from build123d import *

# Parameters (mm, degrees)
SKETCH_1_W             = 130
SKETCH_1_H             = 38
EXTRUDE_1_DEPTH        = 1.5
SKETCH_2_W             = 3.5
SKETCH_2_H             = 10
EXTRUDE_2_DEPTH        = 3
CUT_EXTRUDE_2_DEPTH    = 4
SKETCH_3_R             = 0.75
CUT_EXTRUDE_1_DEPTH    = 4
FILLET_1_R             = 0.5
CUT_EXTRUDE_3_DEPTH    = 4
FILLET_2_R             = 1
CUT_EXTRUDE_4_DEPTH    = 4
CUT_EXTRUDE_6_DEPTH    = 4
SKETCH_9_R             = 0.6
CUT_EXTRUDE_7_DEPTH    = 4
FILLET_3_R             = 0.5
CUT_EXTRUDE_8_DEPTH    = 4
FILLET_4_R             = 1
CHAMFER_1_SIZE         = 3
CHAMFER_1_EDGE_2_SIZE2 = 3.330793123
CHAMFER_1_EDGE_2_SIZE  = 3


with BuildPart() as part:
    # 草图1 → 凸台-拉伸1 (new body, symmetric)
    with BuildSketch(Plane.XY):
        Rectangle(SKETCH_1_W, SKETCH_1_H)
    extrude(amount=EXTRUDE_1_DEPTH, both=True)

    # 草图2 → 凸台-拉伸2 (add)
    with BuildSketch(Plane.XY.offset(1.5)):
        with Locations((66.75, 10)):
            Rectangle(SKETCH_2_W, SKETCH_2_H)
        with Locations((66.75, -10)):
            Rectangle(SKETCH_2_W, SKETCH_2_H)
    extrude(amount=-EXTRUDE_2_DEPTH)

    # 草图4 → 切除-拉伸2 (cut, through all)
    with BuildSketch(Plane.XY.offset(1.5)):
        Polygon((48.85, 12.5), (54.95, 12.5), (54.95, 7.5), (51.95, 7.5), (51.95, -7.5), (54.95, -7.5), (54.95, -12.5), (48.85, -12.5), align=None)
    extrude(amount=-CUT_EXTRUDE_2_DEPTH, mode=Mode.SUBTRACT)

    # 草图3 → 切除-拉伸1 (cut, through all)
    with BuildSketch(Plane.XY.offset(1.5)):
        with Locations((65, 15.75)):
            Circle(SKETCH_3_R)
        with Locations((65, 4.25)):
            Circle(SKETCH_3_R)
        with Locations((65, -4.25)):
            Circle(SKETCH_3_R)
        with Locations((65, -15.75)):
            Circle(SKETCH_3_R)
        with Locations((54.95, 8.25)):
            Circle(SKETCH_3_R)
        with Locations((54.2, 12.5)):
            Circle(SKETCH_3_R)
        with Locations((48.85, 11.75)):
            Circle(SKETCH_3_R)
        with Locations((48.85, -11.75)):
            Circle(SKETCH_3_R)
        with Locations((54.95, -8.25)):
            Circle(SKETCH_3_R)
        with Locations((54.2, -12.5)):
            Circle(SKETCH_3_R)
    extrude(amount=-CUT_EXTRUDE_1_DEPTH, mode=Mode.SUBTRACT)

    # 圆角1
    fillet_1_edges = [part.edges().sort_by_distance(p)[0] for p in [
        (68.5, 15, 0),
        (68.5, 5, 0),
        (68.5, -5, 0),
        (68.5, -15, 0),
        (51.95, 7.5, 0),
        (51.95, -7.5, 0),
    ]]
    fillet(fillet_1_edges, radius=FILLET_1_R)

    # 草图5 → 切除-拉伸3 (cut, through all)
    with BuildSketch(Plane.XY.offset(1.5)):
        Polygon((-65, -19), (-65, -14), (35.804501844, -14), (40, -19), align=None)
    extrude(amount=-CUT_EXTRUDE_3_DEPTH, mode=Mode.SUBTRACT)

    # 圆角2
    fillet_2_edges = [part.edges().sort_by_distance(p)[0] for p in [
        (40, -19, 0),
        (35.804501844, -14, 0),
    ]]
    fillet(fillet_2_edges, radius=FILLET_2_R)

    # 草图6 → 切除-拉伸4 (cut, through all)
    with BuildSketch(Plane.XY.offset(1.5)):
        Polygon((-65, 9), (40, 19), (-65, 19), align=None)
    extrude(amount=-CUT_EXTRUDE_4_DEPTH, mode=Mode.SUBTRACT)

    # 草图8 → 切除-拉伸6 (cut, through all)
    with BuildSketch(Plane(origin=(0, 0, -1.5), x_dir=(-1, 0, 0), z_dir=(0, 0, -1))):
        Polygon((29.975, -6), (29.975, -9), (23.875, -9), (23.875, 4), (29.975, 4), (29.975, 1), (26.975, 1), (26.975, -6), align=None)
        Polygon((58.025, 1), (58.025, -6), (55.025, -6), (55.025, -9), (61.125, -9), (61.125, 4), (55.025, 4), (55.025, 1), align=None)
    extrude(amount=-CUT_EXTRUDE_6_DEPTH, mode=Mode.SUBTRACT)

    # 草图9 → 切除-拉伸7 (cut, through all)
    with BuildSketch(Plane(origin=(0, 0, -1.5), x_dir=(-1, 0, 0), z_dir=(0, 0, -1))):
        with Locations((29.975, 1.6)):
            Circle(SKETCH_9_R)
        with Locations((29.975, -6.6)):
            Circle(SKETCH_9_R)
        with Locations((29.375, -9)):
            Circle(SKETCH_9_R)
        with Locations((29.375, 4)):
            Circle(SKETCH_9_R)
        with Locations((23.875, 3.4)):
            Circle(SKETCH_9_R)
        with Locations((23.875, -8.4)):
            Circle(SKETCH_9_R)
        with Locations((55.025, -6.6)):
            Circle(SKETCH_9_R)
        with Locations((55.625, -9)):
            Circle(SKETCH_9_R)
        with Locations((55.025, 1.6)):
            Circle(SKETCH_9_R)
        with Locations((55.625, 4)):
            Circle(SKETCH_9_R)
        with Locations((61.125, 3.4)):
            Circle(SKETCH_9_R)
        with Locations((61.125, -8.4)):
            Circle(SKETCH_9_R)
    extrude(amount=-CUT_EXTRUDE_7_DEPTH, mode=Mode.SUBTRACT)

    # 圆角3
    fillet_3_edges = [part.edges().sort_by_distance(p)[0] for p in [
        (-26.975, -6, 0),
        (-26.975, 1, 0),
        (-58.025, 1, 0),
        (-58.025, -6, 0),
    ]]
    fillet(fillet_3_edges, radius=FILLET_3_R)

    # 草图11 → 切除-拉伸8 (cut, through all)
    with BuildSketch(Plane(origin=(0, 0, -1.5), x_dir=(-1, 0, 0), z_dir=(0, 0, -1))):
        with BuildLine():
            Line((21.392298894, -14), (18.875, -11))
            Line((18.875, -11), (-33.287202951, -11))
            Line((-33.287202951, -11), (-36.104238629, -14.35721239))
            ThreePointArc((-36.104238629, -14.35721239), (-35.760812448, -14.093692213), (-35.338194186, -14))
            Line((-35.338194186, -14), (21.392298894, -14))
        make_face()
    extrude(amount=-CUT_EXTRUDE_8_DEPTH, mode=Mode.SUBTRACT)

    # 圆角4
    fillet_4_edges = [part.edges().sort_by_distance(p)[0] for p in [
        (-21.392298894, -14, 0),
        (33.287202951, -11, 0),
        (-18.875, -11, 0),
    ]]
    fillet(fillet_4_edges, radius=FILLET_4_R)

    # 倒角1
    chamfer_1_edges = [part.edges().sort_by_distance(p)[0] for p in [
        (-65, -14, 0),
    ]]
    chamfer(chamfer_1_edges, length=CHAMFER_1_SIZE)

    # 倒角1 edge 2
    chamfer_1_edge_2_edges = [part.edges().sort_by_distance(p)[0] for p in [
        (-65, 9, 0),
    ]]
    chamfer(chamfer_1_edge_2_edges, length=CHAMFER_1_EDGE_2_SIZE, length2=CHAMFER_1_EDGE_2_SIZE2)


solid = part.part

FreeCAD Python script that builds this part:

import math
import FreeCAD as App
import Part
import Sketcher

V = App.Vector
Q = App.Units.Quantity


def edges_at(feature, points):
    """Names of the edges that pass closest to the given points."""
    edges = feature.Shape.Edges
    near = lambda p: min(range(len(edges)), key=lambda i: edges[i].distToShape(Part.Vertex(*p))[0])
    return sorted({f"Edge{near(p) + 1}" for p in points})


def add_polygon(sketch, points):
    """Adds a closed chain of lines whose ends are joined by coincident constraints."""
    first, n = sketch.GeometryCount, len(points)
    for a, b in zip(points, points[1:] + points[:1]):
        sketch.addGeometry(Part.LineSegment(App.Vector(*a, 0), App.Vector(*b, 0)), False)
    for i in range(n):
        sketch.addConstraint(Sketcher.Constraint("Coincident", first + i, 2, first + (i + 1) % n, 1))

doc = App.newDocument("Part")
params = doc.addObject("Spreadsheet::Sheet", "Params")
for row, (alias, value) in enumerate([
    ("sketch1_width", "130 mm"),
    ("sketch1_height", "38 mm"),
    ("pad1_length", "3 mm"),
    ("sketch2_height", "10 mm"),
    ("sketch2_width", "3.5 mm"),
    ("pad2_length", "3 mm"),
    ("sketch3_width", "3 mm"),
    ("sketch3_height", "25 mm"),
    ("sketch3_height2", "5 mm"),
    ("sketch3_width2", "6.1 mm"),
    ("sketch4_diameter", "1.5 mm"),
    ("fillet_radius", "0.5 mm"),
    ("sketch5_width", "105 mm"),
    ("sketch5_height", "5 mm"),
    ("fillet2_radius", "1 mm"),
    ("sketch6_width", "105 mm"),
    ("sketch6_height", "10 mm"),
    ("sketch7_width", "3 mm"),
    ("sketch7_height", "7 mm"),
    ("sketch7_width2", "6.1 mm"),
    ("sketch8_diameter", "1.2 mm"),
    ("fillet3_radius", "0.5 mm"),
    ("sketch9_radius", "1 mm"),
    ("fillet4_radius", "1 mm"),
    ("chamfer_size", "3 mm"),
    ("chamfer2_size", "3 mm"),
    ("chamfer2_size2", "3.330793 mm"),
], start=1):
    params.set(f"A{row}", alias)
    params.set(f"B{row}", "=" + value)
    params.setAlias(f"B{row}", alias)

body = doc.addObject("PartDesign::Body", "Body")

# Sketch on XY plane
sketch1 = body.newObject("Sketcher::SketchObject", "Sketch")
sketch1.AttachmentSupport = (doc.getObject("XY_Plane"), [""])
sketch1.MapMode = "FlatFace"
add_polygon(sketch1, [(-65, 19), (-65, -19), (65, -19), (65, 19)])  # lines 0-3
sketch1.addConstraint([
    Sketcher.Constraint("Vertical", 0),
    Sketcher.Constraint("Horizontal", 1),
    Sketcher.Constraint("Vertical", 2),
    Sketcher.Constraint("Horizontal", 3),
    Sketcher.Constraint("Symmetric", 0, 2, 2, 2, -1, 1),
    Sketcher.Constraint("DistanceX", 1, 1, 1, 2, 130.0),
    Sketcher.Constraint("DistanceY", 0, 2, 0, 1, 38.0),
])
sketch1.setExpression("Constraints[9]", "Params.sketch1_width")
sketch1.setExpression("Constraints[10]", "Params.sketch1_height")
pad1 = body.newObject("PartDesign::Pad", "Pad")
pad1.Profile = sketch1
pad1.setExpression("Length", "Params.pad1_length")
pad1.Midplane = True

# Sketch on XY plane
sketch2 = body.newObject("Sketcher::SketchObject", "Sketch001")
sketch2.AttachmentSupport = (doc.getObject("XY_Plane"), [""])
sketch2.MapMode = "FlatFace"
sketch2.AttachmentOffset = App.Placement(V(0, 0, 1.5), App.Rotation())
add_polygon(sketch2, [(65, 15), (65, 5), (68.5, 5), (68.5, 15)])  # lines 0-3
add_polygon(sketch2, [(65, -5), (65, -15), (68.5, -15), (68.5, -5)])  # lines 4-7
sketch2.addConstraint([
    Sketcher.Constraint("Vertical", 0),
    Sketcher.Constraint("Horizontal", 1),
    Sketcher.Constraint("Vertical", 2),
    Sketcher.Constraint("Horizontal", 3),
    Sketcher.Constraint("Vertical", 4),
    Sketcher.Constraint("Horizontal", 5),
    Sketcher.Constraint("Vertical", 6),
    Sketcher.Constraint("Horizontal", 7),
    Sketcher.Constraint("Symmetric", 3, 2, 4, 2, -1),
    Sketcher.Constraint("Symmetric", 1, 2, 6, 2, -1),
    Sketcher.Constraint("DistanceY", 0, 2, 0, 1, 10.0),
    Sketcher.Constraint("DistanceX", 1, 1, 1, 2, 3.5),
    Sketcher.Constraint("DistanceX", -1, 1, 0, 2, 65.0),
    Sketcher.Constraint("DistanceY", -1, 1, 0, 2, 5.0),
])
sketch2.setExpression("Constraints[18]", "Params.sketch2_height")
sketch2.setExpression("Constraints[19]", "Params.sketch2_width")
pad2 = body.newObject("PartDesign::Pad", "Pad001")
pad2.Profile = sketch2
pad2.setExpression("Length", "Params.pad2_length")
pad2.Reversed = True

# Sketch on XY plane
sketch3 = body.newObject("Sketcher::SketchObject", "Sketch002")
sketch3.AttachmentSupport = (doc.getObject("XY_Plane"), [""])
sketch3.MapMode = "FlatFace"
sketch3.AttachmentOffset = App.Placement(V(0, 0, 1.5), App.Rotation())
add_polygon(sketch3, [(55, 12.5), (48.9, 12.5), (48.9, -12.5), (55, -12.5), (55, -7.5), (52, -7.5), (52, 7.5), (55, 7.5)])  # lines 0-7
sketch3.addConstraint([
    Sketcher.Constraint("Horizontal", 0),
    Sketcher.Constraint("Vertical", 1),
    Sketcher.Constraint("Horizontal", 2),
    Sketcher.Constraint("Vertical", 3),
    Sketcher.Constraint("Horizontal", 4),
    Sketcher.Constraint("Vertical", 5),
    Sketcher.Constraint("Horizontal", 6),
    Sketcher.Constraint("Vertical", 7),
    Sketcher.Constraint("Symmetric", 3, 2, 6, 2, -1),
    Sketcher.Constraint("Equal", 3, 7),
    Sketcher.Constraint("DistanceX", 4, 2, 4, 1, 3.0),
    Sketcher.Constraint("DistanceY", 1, 2, 1, 1, 25.0),
    Sketcher.Constraint("DistanceY", 3, 1, 3, 2, 5.0),
    Sketcher.Constraint("DistanceX", 0, 2, 0, 1, 6.1),
    Sketcher.Constraint("DistanceX", -1, 1, 0, 2, 48.85),
])
sketch3.setExpression("Constraints[18]", "Params.sketch3_width")
sketch3.setExpression("Constraints[19]", "Params.sketch3_height")
sketch3.setExpression("Constraints[20]", "Params.sketch3_height2")
sketch3.setExpression("Constraints[21]", "Params.sketch3_width2")
pocket1 = body.newObject("PartDesign::Pocket", "Pocket")
pocket1.Profile = sketch3
pocket1.Type = "ThroughAll"

# Sketch on XY plane
sketch4 = body.newObject("Sketcher::SketchObject", "Sketch003")
sketch4.AttachmentSupport = (doc.getObject("XY_Plane"), [""])
sketch4.MapMode = "FlatFace"
sketch4.AttachmentOffset = App.Placement(V(0, 0, 1.5), App.Rotation())
sketch4.addGeometry([
    Part.Circle(V(65, 15.8, 0), V(0, 0, 1), 0.8),  # 0
    Part.Circle(V(65, 4.2, 0), V(0, 0, 1), 0.8),  # 1
    Part.Circle(V(65, -4.2, 0), V(0, 0, 1), 0.8),  # 2
    Part.Circle(V(65, -15.8, 0), V(0, 0, 1), 0.8),  # 3
    Part.Circle(V(55, 8.2, 0), V(0, 0, 1), 0.8),  # 4
    Part.Circle(V(54.2, 12.5, 0), V(0, 0, 1), 0.8),  # 5
    Part.Circle(V(48.9, 11.8, 0), V(0, 0, 1), 0.8),  # 6
    Part.Circle(V(48.9, -11.8, 0), V(0, 0, 1), 0.8),  # 7
    Part.Circle(V(55, -8.2, 0), V(0, 0, 1), 0.8),  # 8
    Part.Circle(V(54.2, -12.5, 0), V(0, 0, 1), 0.8),  # 9
], False)
sketch4.addConstraint([
    Sketcher.Constraint("Equal", 0, 1),
    Sketcher.Constraint("Equal", 1, 2),
    Sketcher.Constraint("Equal", 2, 3),
    Sketcher.Constraint("Equal", 3, 4),
    Sketcher.Constraint("Equal", 4, 5),
    Sketcher.Constraint("Equal", 5, 6),
    Sketcher.Constraint("Equal", 6, 7),
    Sketcher.Constraint("Equal", 7, 8),
    Sketcher.Constraint("Equal", 8, 9),
    Sketcher.Constraint("Symmetric", 1, 3, 2, 3, -1),
    Sketcher.Constraint("Symmetric", 0, 3, 3, 3, -1),
    Sketcher.Constraint("Symmetric", 6, 3, 7, 3, -1),
    Sketcher.Constraint("Symmetric", 4, 3, 8, 3, -1),
    Sketcher.Constraint("Symmetric", 5, 3, 9, 3, -1),
    Sketcher.Constraint("Vertical", 0, 3, 1, 3),
    Sketcher.Constraint("Diameter", 0, 1.5),
    Sketcher.Constraint("DistanceX", -1, 1, 0, 3, 65.0),
    Sketcher.Constraint("DistanceY", 2, 3, 0, 3, 20.0),
    Sketcher.Constraint("DistanceY", 1, 3, 4, 3, 4.0),
    Sketcher.Constraint("DistanceY", 6, 3, 0, 3, 4.0),
    Sketcher.Constraint("DistanceX", -1, 1, 5, 3, 54.2),
    Sketcher.Constraint("DistanceY", -1, 1, 5, 3, 12.5),
    Sketcher.Constraint("DistanceY", 1, 3, 0, 3, 11.5),
    Sketcher.Constraint("DistanceX", 6, 3, 4, 3, 6.1),
    Sketcher.Constraint("DistanceX", -1, 1, 4, 3, 54.95),
])
sketch4.setExpression("Constraints[15]", "Params.sketch4_diameter")
pocket2 = body.newObject("PartDesign::Pocket", "Pocket001")
pocket2.Profile = sketch4
pocket2.Type = "ThroughAll"
doc.recompute()

fillet = body.newObject("PartDesign::Fillet", "Fillet")
fillet.Base = (pocket2, edges_at(pocket2, [
    (68.5, 15, 0),
    (68.5, 5, 0),
    (68.5, -5, 0),
    (68.5, -15, 0),
    (51.95, 7.5, 0),
    (51.95, -7.5, 0),
]))
fillet.setExpression("Radius", "Params.fillet_radius")

# Sketch on XY plane
sketch5 = body.newObject("Sketcher::SketchObject", "Sketch004")
sketch5.AttachmentSupport = (doc.getObject("XY_Plane"), [""])
sketch5.MapMode = "FlatFace"
sketch5.AttachmentOffset = App.Placement(V(0, 0, 1.5), App.Rotation())
add_polygon(sketch5, [(-65, -14), (-65, -19), (40, -19), (36, -14)])  # lines 0-3
sketch5.addConstraint([
    Sketcher.Constraint("Vertical", 0),
    Sketcher.Constraint("Horizontal", 1),
    Sketcher.Constraint("Horizontal", 3),
    Sketcher.Constraint("DistanceX", 1, 1, 1, 2, 105.0),
    Sketcher.Constraint("DistanceY", 0, 2, 0, 1, 5.0),
    Sketcher.Constraint("Angle", 2, Q("130 deg")),
    Sketcher.Constraint("DistanceX", 0, 2, -1, 1, 65.0),
    Sketcher.Constraint("DistanceY", 0, 2, -1, 1, 19.0),
])
sketch5.setExpression("Constraints[7]", "Params.sketch5_width")
sketch5.setExpression("Constraints[8]", "Params.sketch5_height")
pocket3 = body.newObject("PartDesign::Pocket", "Pocket002")
pocket3.Profile = sketch5
pocket3.Type = "ThroughAll"
doc.recompute()

fillet2 = body.newObject("PartDesign::Fillet", "Fillet001")
fillet2.Base = (pocket3, edges_at(pocket3, [(40, -19, 0), (35.805, -14, 0)]))
fillet2.setExpression("Radius", "Params.fillet2_radius")

# Sketch on XY plane
sketch6 = body.newObject("Sketcher::SketchObject", "Sketch005")
sketch6.AttachmentSupport = (doc.getObject("XY_Plane"), [""])
sketch6.MapMode = "FlatFace"
sketch6.AttachmentOffset = App.Placement(V(0, 0, 1.5), App.Rotation())
add_polygon(sketch6, [(-65, 9), (40, 19), (-65, 19)])  # lines 0-2
sketch6.addConstraint([
    Sketcher.Constraint("Horizontal", 1),
    Sketcher.Constraint("Vertical", 2),
    Sketcher.Constraint("DistanceX", 1, 2, 1, 1, 105.0),
    Sketcher.Constraint("DistanceY", 2, 2, 2, 1, 10.0),
    Sketcher.Constraint("DistanceX", -1, 1, 0, 2, 40.0),
    Sketcher.Constraint("DistanceY", -1, 1, 0, 2, 19.0),
])
sketch6.setExpression("Constraints[5]", "Params.sketch6_width")
sketch6.setExpression("Constraints[6]", "Params.sketch6_height")
pocket4 = body.newObject("PartDesign::Pocket", "Pocket003")
pocket4.Profile = sketch6
pocket4.Type = "ThroughAll"

# Sketch on XY plane
sketch7 = body.newObject("Sketcher::SketchObject", "Sketch006")
sketch7.AttachmentSupport = (doc.getObject("XY_Plane"), [""])
sketch7.MapMode = "FlatFace"
sketch7.AttachmentOffset = App.Placement(V(0, 0, -1.5), App.Rotation())
add_polygon(sketch7, [(-30, -9), (-30, -6), (-27, -6), (-27, 1), (-30, 1), (-30, 4), (-23.9, 4), (-23.9, -9)])  # lines 0-7
add_polygon(sketch7, [(-58, 1), (-58, -6), (-55, -6), (-55, -9), (-61.1, -9), (-61.1, 4), (-55, 4), (-55, 1)])  # lines 8-15
sketch7.addConstraint([
    Sketcher.Constraint("Vertical", 0),
    Sketcher.Constraint("Horizontal", 1),
    Sketcher.Constraint("Vertical", 2),
    Sketcher.Constraint("Horizontal", 3),
    Sketcher.Constraint("Vertical", 4),
    Sketcher.Constraint("Horizontal", 5),
    Sketcher.Constraint("Vertical", 6),
    Sketcher.Constraint("Horizontal", 7),
    Sketcher.Constraint("Vertical", 8),
    Sketcher.Constraint("Horizontal", 9),
    Sketcher.Constraint("Vertical", 10),
    Sketcher.Constraint("Horizontal", 11),
    Sketcher.Constraint("Vertical", 12),
    Sketcher.Constraint("Horizontal", 13),
    Sketcher.Constraint("Vertical", 14),
    Sketcher.Constraint("Horizontal", 15),
    Sketcher.Constraint("Horizontal", 1, 2, 8, 2),
    Sketcher.Constraint("Horizontal", 7, 2, 10, 2),
    Sketcher.Constraint("Horizontal", 5, 2, 12, 2),
    Sketcher.Constraint("Horizontal", 3, 2, 14, 2),
    Sketcher.Constraint("Vertical", 0, 2, 3, 2),
    Sketcher.Constraint("Vertical", 10, 2, 13, 2),
    Sketcher.Constraint("Equal", 3, 9),
    Sketcher.Constraint("Equal", 7, 11),
    Sketcher.Constraint("Equal", 15, 0),
    Sketcher.Constraint("Equal", 0, 4),
    Sketcher.Constraint("DistanceX", 1, 1, 1, 2, 3.0),
    Sketcher.Constraint("DistanceY", 2, 1, 2, 2, 7.0),
    Sketcher.Constraint("DistanceX", 5, 1, 5, 2, 6.1),
    Sketcher.Constraint("DistanceY", 0, 2, -1, 1, 6.0),
    Sketcher.Constraint("DistanceX", 8, 2, 0, 2, 28.05),
    Sketcher.Constraint("DistanceX", 0, 2, -1, 1, 29.975),
])
sketch7.setExpression("Constraints[42]", "Params.sketch7_width")
sketch7.setExpression("Constraints[43]", "Params.sketch7_height")
sketch7.setExpression("Constraints[44]", "Params.sketch7_width2")
pocket5 = body.newObject("PartDesign::Pocket", "Pocket004")
pocket5.Profile = sketch7
pocket5.Type = "ThroughAll"
pocket5.Reversed = True

# Sketch on XY plane
sketch8 = body.newObject("Sketcher::SketchObject", "Sketch007")
sketch8.AttachmentSupport = (doc.getObject("XY_Plane"), [""])
sketch8.MapMode = "FlatFace"
sketch8.AttachmentOffset = App.Placement(V(0, 0, -1.5), App.Rotation())
sketch8.addGeometry([
    Part.Circle(V(-30, 1.6, 0), V(0, 0, 1), 0.6),  # 0
    Part.Circle(V(-30, -6.6, 0), V(0, 0, 1), 0.6),  # 1
    Part.Circle(V(-29.4, -9, 0), V(0, 0, 1), 0.6),  # 2
    Part.Circle(V(-29.4, 4, 0), V(0, 0, 1), 0.6),  # 3
    Part.Circle(V(-23.9, 3.4, 0), V(0, 0, 1), 0.6),  # 4
    Part.Circle(V(-23.9, -8.4, 0), V(0, 0, 1), 0.6),  # 5
    Part.Circle(V(-55, -6.6, 0), V(0, 0, 1), 0.6),  # 6
    Part.Circle(V(-55.6, -9, 0), V(0, 0, 1), 0.6),  # 7
    Part.Circle(V(-55, 1.6, 0), V(0, 0, 1), 0.6),  # 8
    Part.Circle(V(-55.6, 4, 0), V(0, 0, 1), 0.6),  # 9
    Part.Circle(V(-61.1, 3.4, 0), V(0, 0, 1), 0.6),  # 10
    Part.Circle(V(-61.1, -8.4, 0), V(0, 0, 1), 0.6),  # 11
], False)
sketch8.addConstraint([
    Sketcher.Constraint("Equal", 0, 1),
    Sketcher.Constraint("Equal", 1, 2),
    Sketcher.Constraint("Equal", 2, 3),
    Sketcher.Constraint("Equal", 3, 4),
    Sketcher.Constraint("Equal", 4, 5),
    Sketcher.Constraint("Equal", 5, 6),
    Sketcher.Constraint("Equal", 6, 7),
    Sketcher.Constraint("Equal", 7, 8),
    Sketcher.Constraint("Equal", 8, 9),
    Sketcher.Constraint("Equal", 9, 10),
    Sketcher.Constraint("Equal", 10, 11),
    Sketcher.Constraint("Horizontal", 1, 3, 6, 3),
    Sketcher.Constraint("Horizontal", 2, 3, 7, 3),
    Sketcher.Constraint("Horizontal", 0, 3, 8, 3),
    Sketcher.Constraint("Horizontal", 3, 3, 9, 3),
    Sketcher.Constraint("Horizontal", 4, 3, 10, 3),
    Sketcher.Constraint("Horizontal", 5, 3, 11, 3),
    Sketcher.Constraint("Vertical", 0, 3, 1, 3),
    Sketcher.Constraint("Vertical", 2, 3, 3, 3),
    Sketcher.Constraint("Vertical", 4, 3, 5, 3),
    Sketcher.Constraint("Vertical", 6, 3, 8, 3),
    Sketcher.Constraint("Vertical", 7, 3, 9, 3),
    Sketcher.Constraint("Vertical", 10, 3, 11, 3),
    Sketcher.Constraint("Diameter", 0, 1.2),
    Sketcher.Constraint("DistanceY", 2, 3, -1, 1, 9.0),
    Sketcher.Constraint("DistanceY", -1, 1, 3, 3, 4.0),
    Sketcher.Constraint("DistanceY", 1, 3, 4, 3, 10.0),
    Sketcher.Constraint("DistanceY", 5, 3, 0, 3, 10.0),
    Sketcher.Constraint("DistanceY", -1, 1, 0, 3, 1.6),
    Sketcher.Constraint("DistanceY", 1, 3, -1, 1, 6.6),
    Sketcher.Constraint("DistanceX", 1, 3, 2, 3, 0.6),
    Sketcher.Constraint("DistanceX", 3, 3, 4, 3, 5.5),
    Sketcher.Constraint("DistanceX", 7, 3, 6, 3, 0.6),
    Sketcher.Constraint("DistanceX", 10, 3, 9, 3, 5.5),
    Sketcher.Constraint("DistanceX", 6, 3, 1, 3, 25.05),
    Sketcher.Constraint("DistanceX", 0, 3, -1, 1, 29.975),
])
sketch8.setExpression("Constraints[23]", "Params.sketch8_diameter")
pocket6 = body.newObject("PartDesign::Pocket", "Pocket005")
pocket6.Profile = sketch8
pocket6.Type = "ThroughAll"
pocket6.Reversed = True
doc.recompute()

fillet3 = body.newObject("PartDesign::Fillet", "Fillet002")
fillet3.Base = (pocket6, edges_at(pocket6, [
    (-26.975, -6, 0),
    (-26.975, 1, 0),
    (-58.025, 1, 0),
    (-58.025, -6, 0),
]))
fillet3.setExpression("Radius", "Params.fillet3_radius")

# Sketch on XY plane
sketch9 = body.newObject("Sketcher::SketchObject", "Sketch008")
sketch9.AttachmentSupport = (doc.getObject("XY_Plane"), [""])
sketch9.MapMode = "FlatFace"
sketch9.AttachmentOffset = App.Placement(V(0, 0, -1.5), App.Rotation())
sketch9.addGeometry([
    Part.LineSegment(V(-21.4, -14, 0), V(-18.9, -11, 0)),  # 0
    Part.LineSegment(V(-18.9, -11, 0), V(33.3, -11, 0)),  # 1
    Part.LineSegment(V(33.3, -11, 0), V(36.1, -14.4, 0)),  # 2
    Part.ArcOfCircle(Part.Circle(V(35.3, -15, 0), V(0, 0, 1), 1), math.radians(40), math.radians(90)),  # 3
    Part.LineSegment(V(35.3, -14, 0), V(-21.4, -14, 0)),  # 4
], False)
sketch9.addConstraint([
    Sketcher.Constraint("Coincident", 0, 2, 1, 1),
    Sketcher.Constraint("Coincident", 1, 2, 2, 1),
    Sketcher.Constraint("Tangent", 2, 2, 3, 1),
    Sketcher.Constraint("Tangent", 3, 2, 4, 1),
    Sketcher.Constraint("Coincident", 4, 2, 0, 1),
    Sketcher.Constraint("Horizontal", 1),
    Sketcher.Constraint("Horizontal", 4),
    Sketcher.Constraint("Radius", 3, 1.0),
    Sketcher.Constraint("Angle", 0, Q("50 deg")),
    Sketcher.Constraint("Angle", 2, Q("-50 deg")),
    Sketcher.Constraint("DistanceY", 3, 3, -1, 1, 15.0),
    Sketcher.Constraint("DistanceY", 0, 2, -1, 1, 11.0),
    Sketcher.Constraint("DistanceX", 0, 2, -1, 1, 18.875),
    Sketcher.Constraint("DistanceX", 4, 2, 1, 2, 54.679502),
])
sketch9.setExpression("Constraints[7]", "Params.sketch9_radius")
pocket7 = body.newObject("PartDesign::Pocket", "Pocket006")
pocket7.Profile = sketch9
pocket7.Type = "ThroughAll"
pocket7.Reversed = True
doc.recompute()

fillet4 = body.newObject("PartDesign::Fillet", "Fillet003")
fillet4.Base = (pocket7, edges_at(pocket7, [(-21.392, -14, 0), (33.287, -11, 0), (-18.875, -11, 0)]))
fillet4.setExpression("Radius", "Params.fillet4_radius")
doc.recompute()

chamfer = body.newObject("PartDesign::Chamfer", "Chamfer")
chamfer.Base = (fillet4, edges_at(fillet4, [(-65, -14, 0)]))
chamfer.setExpression("Size", "Params.chamfer_size")
doc.recompute()

chamfer2 = body.newObject("PartDesign::Chamfer", "Chamfer001")
chamfer2.Base = (chamfer, edges_at(chamfer, [(-65, 9, 0)]))
chamfer2.ChamferType = "Two distances"
chamfer2.setExpression("Size", "Params.chamfer2_size")
chamfer2.setExpression("Size2", "Params.chamfer2_size2")

doc.recompute()
